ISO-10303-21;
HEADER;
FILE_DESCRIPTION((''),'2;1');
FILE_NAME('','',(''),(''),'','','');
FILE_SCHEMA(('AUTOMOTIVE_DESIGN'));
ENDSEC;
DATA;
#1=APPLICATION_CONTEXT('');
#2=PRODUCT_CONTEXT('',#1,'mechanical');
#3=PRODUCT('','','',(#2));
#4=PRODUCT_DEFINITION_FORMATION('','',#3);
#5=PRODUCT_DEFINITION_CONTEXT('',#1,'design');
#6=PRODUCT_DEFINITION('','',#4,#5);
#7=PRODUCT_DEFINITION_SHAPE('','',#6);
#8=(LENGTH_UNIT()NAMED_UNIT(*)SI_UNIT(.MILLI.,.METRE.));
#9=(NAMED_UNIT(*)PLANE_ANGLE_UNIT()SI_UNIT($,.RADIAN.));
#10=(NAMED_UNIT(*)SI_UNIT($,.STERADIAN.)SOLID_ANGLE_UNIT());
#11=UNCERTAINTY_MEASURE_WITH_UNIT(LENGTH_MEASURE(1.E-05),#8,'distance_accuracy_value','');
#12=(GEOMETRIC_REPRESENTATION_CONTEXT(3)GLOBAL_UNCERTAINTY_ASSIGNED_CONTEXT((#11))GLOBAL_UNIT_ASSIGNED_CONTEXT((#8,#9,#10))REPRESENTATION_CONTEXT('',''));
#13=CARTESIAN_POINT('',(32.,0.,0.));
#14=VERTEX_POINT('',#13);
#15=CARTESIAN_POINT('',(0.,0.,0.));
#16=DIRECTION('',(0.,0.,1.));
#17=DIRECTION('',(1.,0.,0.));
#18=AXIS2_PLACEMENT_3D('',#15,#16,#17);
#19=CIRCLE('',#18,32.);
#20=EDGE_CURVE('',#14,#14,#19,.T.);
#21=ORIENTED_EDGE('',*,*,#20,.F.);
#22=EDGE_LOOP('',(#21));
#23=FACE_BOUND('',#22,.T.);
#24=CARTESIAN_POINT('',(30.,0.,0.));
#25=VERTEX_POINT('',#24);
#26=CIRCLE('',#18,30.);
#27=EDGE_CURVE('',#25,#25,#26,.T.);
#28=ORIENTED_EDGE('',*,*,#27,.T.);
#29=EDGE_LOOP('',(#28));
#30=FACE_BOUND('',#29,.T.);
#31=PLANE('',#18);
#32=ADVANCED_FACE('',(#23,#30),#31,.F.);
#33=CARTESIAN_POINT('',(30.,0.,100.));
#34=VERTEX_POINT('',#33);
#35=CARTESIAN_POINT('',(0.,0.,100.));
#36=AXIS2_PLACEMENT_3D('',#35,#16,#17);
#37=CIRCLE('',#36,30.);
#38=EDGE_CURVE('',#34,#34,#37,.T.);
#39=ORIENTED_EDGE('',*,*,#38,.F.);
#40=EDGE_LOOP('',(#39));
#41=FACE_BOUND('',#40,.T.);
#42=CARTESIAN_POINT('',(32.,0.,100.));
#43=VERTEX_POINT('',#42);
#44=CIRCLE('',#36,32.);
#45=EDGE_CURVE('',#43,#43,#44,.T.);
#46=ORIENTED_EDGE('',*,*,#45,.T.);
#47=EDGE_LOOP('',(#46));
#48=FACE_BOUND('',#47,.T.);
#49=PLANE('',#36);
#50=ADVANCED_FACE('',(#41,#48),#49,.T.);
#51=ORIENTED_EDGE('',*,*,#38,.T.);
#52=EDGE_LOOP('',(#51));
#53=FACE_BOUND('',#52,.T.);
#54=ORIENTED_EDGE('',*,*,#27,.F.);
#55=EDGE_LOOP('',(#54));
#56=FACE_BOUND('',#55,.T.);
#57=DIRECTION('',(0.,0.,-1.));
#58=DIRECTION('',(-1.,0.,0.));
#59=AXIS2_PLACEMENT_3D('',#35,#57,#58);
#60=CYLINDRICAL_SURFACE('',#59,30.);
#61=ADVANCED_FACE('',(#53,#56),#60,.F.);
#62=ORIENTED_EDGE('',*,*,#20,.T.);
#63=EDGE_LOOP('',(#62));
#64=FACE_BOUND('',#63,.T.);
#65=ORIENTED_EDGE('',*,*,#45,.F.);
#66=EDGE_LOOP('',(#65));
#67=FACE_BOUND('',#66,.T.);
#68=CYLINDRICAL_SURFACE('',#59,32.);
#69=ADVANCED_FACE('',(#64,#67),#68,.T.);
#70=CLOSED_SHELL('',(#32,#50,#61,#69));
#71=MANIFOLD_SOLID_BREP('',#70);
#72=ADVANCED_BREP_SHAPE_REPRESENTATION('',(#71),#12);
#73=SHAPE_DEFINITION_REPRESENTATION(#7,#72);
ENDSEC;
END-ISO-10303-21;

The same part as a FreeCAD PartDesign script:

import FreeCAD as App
import Part
import Sketcher
from FreeCAD import Vector
Q = App.Units.Quantity

doc = App.newDocument("Part")
body = doc.addObject("PartDesign::Body", "Body")

# Sketch on XY plane
sketch1 = body.newObject("Sketcher::SketchObject", "Sketch")
sketch1.AttachmentSupport = (doc.getObject("XY_Plane"), [""])
sketch1.MapMode = "FlatFace"
sketch1.addGeometry(Part.Circle(Vector(0, 0, 0), Vector(0, 0, 1), 32), False)
sketch1.addGeometry(Part.Circle(Vector(0, 0, 0), Vector(0, 0, 1), 30), False)
sketch1.addConstraint(Sketcher.Constraint("Coincident", 0, 3, -1, 1))
sketch1.addConstraint(Sketcher.Constraint("Coincident", 1, 3, -1, 1))
sketch1.addConstraint(Sketcher.Constraint("Diameter", 0, Q("64 mm")))
sketch1.addConstraint(Sketcher.Constraint("Diameter", 1, Q("60 mm")))
pad1 = body.newObject("PartDesign::Pad", "Pad")
pad1.Profile = sketch1
pad1.Length = 100

doc.recompute()
